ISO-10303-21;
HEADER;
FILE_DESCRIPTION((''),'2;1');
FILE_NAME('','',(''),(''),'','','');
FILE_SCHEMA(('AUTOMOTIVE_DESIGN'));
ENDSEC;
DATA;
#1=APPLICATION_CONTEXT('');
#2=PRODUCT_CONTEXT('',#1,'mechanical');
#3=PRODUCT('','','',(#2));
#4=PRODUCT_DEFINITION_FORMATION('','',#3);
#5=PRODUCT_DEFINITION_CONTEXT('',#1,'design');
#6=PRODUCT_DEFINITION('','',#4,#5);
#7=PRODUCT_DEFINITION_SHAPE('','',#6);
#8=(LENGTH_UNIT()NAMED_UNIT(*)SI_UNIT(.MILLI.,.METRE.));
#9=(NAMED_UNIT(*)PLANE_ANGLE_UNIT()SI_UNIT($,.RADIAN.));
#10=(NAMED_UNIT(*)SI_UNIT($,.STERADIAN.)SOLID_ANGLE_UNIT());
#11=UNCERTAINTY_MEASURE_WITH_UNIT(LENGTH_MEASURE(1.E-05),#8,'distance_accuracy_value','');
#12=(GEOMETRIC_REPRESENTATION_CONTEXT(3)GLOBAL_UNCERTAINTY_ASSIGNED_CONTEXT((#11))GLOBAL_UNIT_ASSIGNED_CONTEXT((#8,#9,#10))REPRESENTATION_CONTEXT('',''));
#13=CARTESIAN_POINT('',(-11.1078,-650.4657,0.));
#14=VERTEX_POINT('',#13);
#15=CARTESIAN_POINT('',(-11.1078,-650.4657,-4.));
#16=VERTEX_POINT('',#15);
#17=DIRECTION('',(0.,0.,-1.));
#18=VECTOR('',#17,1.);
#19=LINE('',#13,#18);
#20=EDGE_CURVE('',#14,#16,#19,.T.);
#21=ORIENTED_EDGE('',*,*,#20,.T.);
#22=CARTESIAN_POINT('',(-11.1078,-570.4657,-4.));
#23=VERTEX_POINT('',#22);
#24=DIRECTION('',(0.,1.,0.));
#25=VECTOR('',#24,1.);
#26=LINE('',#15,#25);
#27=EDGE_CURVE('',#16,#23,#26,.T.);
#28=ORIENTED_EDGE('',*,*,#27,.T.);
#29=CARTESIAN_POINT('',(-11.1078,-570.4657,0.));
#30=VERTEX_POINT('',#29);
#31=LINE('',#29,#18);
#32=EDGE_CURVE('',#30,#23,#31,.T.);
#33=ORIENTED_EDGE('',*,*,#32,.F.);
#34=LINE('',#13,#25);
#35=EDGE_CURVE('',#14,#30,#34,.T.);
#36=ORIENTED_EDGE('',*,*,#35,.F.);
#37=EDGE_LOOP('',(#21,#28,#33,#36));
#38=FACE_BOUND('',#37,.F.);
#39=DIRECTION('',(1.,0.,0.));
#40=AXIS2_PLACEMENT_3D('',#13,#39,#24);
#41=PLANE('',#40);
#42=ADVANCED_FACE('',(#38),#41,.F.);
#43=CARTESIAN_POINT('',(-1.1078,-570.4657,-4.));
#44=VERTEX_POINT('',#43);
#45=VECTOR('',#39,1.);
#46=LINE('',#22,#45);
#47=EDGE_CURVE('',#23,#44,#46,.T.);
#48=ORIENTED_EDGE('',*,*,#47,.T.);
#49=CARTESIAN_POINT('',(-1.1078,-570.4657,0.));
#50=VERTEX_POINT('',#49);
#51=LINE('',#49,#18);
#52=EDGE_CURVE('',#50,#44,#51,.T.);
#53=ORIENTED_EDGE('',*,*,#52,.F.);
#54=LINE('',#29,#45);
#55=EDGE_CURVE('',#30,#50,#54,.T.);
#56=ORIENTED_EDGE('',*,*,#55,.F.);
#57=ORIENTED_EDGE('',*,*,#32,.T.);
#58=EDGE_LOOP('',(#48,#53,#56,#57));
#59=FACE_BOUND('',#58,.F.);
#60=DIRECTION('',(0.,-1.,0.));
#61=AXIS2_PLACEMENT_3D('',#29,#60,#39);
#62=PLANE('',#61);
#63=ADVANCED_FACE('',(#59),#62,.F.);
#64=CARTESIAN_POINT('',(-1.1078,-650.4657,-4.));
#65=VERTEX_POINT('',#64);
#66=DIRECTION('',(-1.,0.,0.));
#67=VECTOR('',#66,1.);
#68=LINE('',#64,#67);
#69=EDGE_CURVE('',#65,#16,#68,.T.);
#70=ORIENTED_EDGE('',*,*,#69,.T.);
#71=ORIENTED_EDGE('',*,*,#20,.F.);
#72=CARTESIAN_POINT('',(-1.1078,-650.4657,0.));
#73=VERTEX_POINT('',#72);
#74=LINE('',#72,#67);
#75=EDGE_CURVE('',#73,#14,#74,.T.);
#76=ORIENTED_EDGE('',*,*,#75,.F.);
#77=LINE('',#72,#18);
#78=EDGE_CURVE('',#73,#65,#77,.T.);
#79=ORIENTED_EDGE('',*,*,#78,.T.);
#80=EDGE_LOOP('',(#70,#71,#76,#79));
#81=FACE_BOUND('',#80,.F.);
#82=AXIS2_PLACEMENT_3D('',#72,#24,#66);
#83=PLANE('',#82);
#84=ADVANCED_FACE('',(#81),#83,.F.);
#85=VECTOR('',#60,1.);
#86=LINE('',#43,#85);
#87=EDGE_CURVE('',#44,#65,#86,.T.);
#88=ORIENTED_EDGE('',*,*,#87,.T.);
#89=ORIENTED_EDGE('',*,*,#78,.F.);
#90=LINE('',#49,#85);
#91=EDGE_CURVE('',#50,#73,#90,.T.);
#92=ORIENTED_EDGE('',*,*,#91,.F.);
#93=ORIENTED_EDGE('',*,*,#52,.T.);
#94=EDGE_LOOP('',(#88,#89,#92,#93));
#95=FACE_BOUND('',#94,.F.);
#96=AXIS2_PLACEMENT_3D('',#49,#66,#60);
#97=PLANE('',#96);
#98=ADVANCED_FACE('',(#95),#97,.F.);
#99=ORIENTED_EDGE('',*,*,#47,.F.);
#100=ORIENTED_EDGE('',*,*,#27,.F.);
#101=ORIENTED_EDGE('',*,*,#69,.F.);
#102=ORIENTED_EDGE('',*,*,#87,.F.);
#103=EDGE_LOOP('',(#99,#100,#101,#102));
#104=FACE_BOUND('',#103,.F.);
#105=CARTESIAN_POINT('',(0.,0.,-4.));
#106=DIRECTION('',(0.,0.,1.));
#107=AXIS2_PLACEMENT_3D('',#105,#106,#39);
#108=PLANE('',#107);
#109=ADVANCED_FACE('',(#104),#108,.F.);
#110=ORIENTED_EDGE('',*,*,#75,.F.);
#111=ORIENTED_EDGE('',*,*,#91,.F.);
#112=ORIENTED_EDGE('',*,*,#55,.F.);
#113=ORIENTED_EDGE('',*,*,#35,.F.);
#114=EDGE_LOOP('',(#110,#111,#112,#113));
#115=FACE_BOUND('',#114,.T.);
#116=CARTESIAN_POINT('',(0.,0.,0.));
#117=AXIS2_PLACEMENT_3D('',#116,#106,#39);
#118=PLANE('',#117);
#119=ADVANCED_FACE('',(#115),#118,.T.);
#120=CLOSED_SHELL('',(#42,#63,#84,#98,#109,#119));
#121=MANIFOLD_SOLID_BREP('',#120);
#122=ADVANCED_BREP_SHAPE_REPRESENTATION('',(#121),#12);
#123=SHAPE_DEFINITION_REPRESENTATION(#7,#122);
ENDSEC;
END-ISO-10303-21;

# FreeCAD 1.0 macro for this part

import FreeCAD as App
import Part
import Sketcher

V = App.Vector

doc = App.newDocument("Part")
body = doc.addObject("PartDesign::Body", "Body")

# Sketch on XY plane
sketch1 = doc.addObject("Sketcher::SketchObject", "Sketch")
body.addObject(sketch1)
sketch1.AttachmentSupport = (doc.XY_Plane, [""])
sketch1.MapMode = "FlatFace"
sketch1.addGeometry(Part.LineSegment(V(-1.1078, -570.4657, 0), V(-11.1078, -570.4657, 0)), False)
sketch1.addGeometry(Part.LineSegment(V(-11.1078, -570.4657, 0), V(-11.1078, -650.4657, 0)), False)
sketch1.addGeometry(Part.LineSegment(V(-11.1078, -650.4657, 0), V(-1.1078, -650.4657, 0)), False)
sketch1.addGeometry(Part.LineSegment(V(-1.1078, -650.4657, 0), V(-1.1078, -570.4657, 0)), False)
sketch1.addConstraint(Sketcher.Constraint("Coincident", 0, 2, 1, 1))
sketch1.addConstraint(Sketcher.Constraint("Coincident", 1, 2, 2, 1))
sketch1.addConstraint(Sketcher.Constraint("Coincident", 2, 2, 3, 1))
sketch1.addConstraint(Sketcher.Constraint("Coincident", 3, 2, 0, 1))
sketch1.addConstraint(Sketcher.Constraint("Horizontal", 0))
sketch1.addConstraint(Sketcher.Constraint("Vertical", 1))
sketch1.addConstraint(Sketcher.Constraint("Horizontal", 2))
sketch1.addConstraint(Sketcher.Constraint("Vertical", 3))
sketch1.addConstraint(Sketcher.Constraint("DistanceX", 0, 2, 0, 1, 10.0))
sketch1.addConstraint(Sketcher.Constraint("DistanceY", 1, 2, 1, 1, 80.0))
sketch1.addConstraint(Sketcher.Constraint("DistanceX", 0, 2, -1, 1, 11.1078))
sketch1.addConstraint(Sketcher.Constraint("DistanceY", 0, 2, -1, 1, 570.4657))
pad1 = doc.addObject("PartDesign::Pad", "Pad")
body.addObject(pad1)
pad1.Profile = sketch1
pad1.Length = 4
pad1.Reversed = True

doc.recompute()
